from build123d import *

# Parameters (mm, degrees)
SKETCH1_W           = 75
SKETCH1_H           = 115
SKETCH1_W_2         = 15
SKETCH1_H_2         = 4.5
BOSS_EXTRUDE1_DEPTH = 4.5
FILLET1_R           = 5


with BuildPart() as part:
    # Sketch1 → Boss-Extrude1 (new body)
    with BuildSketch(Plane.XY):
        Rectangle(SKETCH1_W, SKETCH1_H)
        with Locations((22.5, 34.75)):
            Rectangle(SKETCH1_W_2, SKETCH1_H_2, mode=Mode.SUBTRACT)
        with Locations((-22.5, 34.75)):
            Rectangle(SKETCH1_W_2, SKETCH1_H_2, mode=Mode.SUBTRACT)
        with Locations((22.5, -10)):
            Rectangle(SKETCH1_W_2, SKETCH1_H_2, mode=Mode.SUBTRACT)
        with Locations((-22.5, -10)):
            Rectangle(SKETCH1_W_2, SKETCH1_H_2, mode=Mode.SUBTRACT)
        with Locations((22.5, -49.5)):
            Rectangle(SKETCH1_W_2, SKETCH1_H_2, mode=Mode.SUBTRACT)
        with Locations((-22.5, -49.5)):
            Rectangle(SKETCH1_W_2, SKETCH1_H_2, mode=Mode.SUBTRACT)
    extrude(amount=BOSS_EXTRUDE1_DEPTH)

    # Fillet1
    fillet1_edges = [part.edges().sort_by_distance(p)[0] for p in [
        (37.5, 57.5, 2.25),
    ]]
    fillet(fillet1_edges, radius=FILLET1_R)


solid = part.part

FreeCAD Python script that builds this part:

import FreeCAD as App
import Part
import Sketcher

V = App.Vector
Q = App.Units.Quantity


def edges_at(feature, points):
    """Names of the edges that pass closest to the given points."""
    edges = feature.Shape.Edges
    near = lambda p: min(range(len(edges)), key=lambda i: edges[i].distToShape(Part.Vertex(*p))[0])
    return sorted({f"Edge{near(p) + 1}" for p in points})

doc = App.newDocument("Part")
body = doc.addObject("PartDesign::Body", "Body")

# Sketch on XY plane
sketch1 = body.newObject("Sketcher::SketchObject", "Sketch")
sketch1.AttachmentSupport = (doc.getObject("XY_Plane"), [""])
sketch1.MapMode = "FlatFace"
sketch1.addGeometry([
    Part.LineSegment(V(-37.5, 57.5, 0), V(-37.5, -57.5, 0)),  # 0
    Part.LineSegment(V(-37.5, -57.5, 0), V(37.5, -57.5, 0)),  # 1
    Part.LineSegment(V(37.5, -57.5, 0), V(37.5, 57.5, 0)),  # 2
    Part.LineSegment(V(37.5, 57.5, 0), V(-37.5, 57.5, 0)),  # 3
    Part.LineSegment(V(-15, -51.8, 0), V(-30, -51.8, 0)),  # 4
    Part.LineSegment(V(-30, -51.8, 0), V(-30, -47.2, 0)),  # 5
    Part.LineSegment(V(-30, -47.2, 0), V(-15, -47.2, 0)),  # 6
    Part.LineSegment(V(-15, -47.2, 0), V(-15, -51.8, 0)),  # 7
    Part.LineSegment(V(-15, -12.2, 0), V(-30, -12.2, 0)),  # 8
    Part.LineSegment(V(-30, -12.2, 0), V(-30, -7.8, 0)),  # 9
    Part.LineSegment(V(-30, -7.8, 0), V(-15, -7.8, 0)),  # 10
    Part.LineSegment(V(-15, -7.8, 0), V(-15, -12.2, 0)),  # 11
    Part.LineSegment(V(30, -51.8, 0), V(15, -51.8, 0)),  # 12
    Part.LineSegment(V(15, -51.8, 0), V(15, -47.2, 0)),  # 13
    Part.LineSegment(V(15, -47.2, 0), V(30, -47.2, 0)),  # 14
    Part.LineSegment(V(30, -47.2, 0), V(30, -51.8, 0)),  # 15
    Part.LineSegment(V(30, -12.2, 0), V(15, -12.2, 0)),  # 16
    Part.LineSegment(V(15, -12.2, 0), V(15, -7.8, 0)),  # 17
    Part.LineSegment(V(15, -7.8, 0), V(30, -7.8, 0)),  # 18
    Part.LineSegment(V(30, -7.8, 0), V(30, -12.2, 0)),  # 19
    Part.LineSegment(V(-15, 32.5, 0), V(-30, 32.5, 0)),  # 20
    Part.LineSegment(V(-30, 32.5, 0), V(-30, 37, 0)),  # 21
    Part.LineSegment(V(-30, 37, 0), V(-15, 37, 0)),  # 22
    Part.LineSegment(V(-15, 37, 0), V(-15, 32.5, 0)),  # 23
    Part.LineSegment(V(30, 32.5, 0), V(15, 32.5, 0)),  # 24
    Part.LineSegment(V(15, 32.5, 0), V(15, 37, 0)),  # 25
    Part.LineSegment(V(15, 37, 0), V(30, 37, 0)),  # 26
    Part.LineSegment(V(30, 37, 0), V(30, 32.5, 0)),  # 27
], False)
sketch1.addConstraint([
    Sketcher.Constraint("Coincident", 0, 2, 1, 1),
    Sketcher.Constraint("Coincident", 1, 2, 2, 1),
    Sketcher.Constraint("Coincident", 2, 2, 3, 1),
    Sketcher.Constraint("Coincident", 3, 2, 0, 1),
    Sketcher.Constraint("Coincident", 4, 2, 5, 1),
    Sketcher.Constraint("Coincident", 5, 2, 6, 1),
    Sketcher.Constraint("Coincident", 6, 2, 7, 1),
    Sketcher.Constraint("Coincident", 7, 2, 4, 1),
    Sketcher.Constraint("Coincident", 8, 2, 9, 1),
    Sketcher.Constraint("Coincident", 9, 2, 10, 1),
    Sketcher.Constraint("Coincident", 10, 2, 11, 1),
    Sketcher.Constraint("Coincident", 11, 2, 8, 1),
    Sketcher.Constraint("Coincident", 12, 2, 13, 1),
    Sketcher.Constraint("Coincident", 13, 2, 14, 1),
    Sketcher.Constraint("Coincident", 14, 2, 15, 1),
    Sketcher.Constraint("Coincident", 15, 2, 12, 1),
    Sketcher.Constraint("Coincident", 16, 2, 17, 1),
    Sketcher.Constraint("Coincident", 17, 2, 18, 1),
    Sketcher.Constraint("Coincident", 18, 2, 19, 1),
    Sketcher.Constraint("Coincident", 19, 2, 16, 1),
    Sketcher.Constraint("Coincident", 20, 2, 21, 1),
    Sketcher.Constraint("Coincident", 21, 2, 22, 1),
    Sketcher.Constraint("Coincident", 22, 2, 23, 1),
    Sketcher.Constraint("Coincident", 23, 2, 20, 1),
    Sketcher.Constraint("Coincident", 24, 2, 25, 1),
    Sketcher.Constraint("Coincident", 25, 2, 26, 1),
    Sketcher.Constraint("Coincident", 26, 2, 27, 1),
    Sketcher.Constraint("Coincident", 27, 2, 24, 1),
    Sketcher.Constraint("Vertical", 0),
    Sketcher.Constraint("Horizontal", 1),
    Sketcher.Constraint("Vertical", 2),
    Sketcher.Constraint("Horizontal", 3),
    Sketcher.Constraint("Horizontal", 4),
    Sketcher.Constraint("Vertical", 5),
    Sketcher.Constraint("Horizontal", 6),
    Sketcher.Constraint("Vertical", 7),
    Sketcher.Constraint("Horizontal", 8),
    Sketcher.Constraint("Vertical", 9),
    Sketcher.Constraint("Horizontal", 10),
    Sketcher.Constraint("Vertical", 11),
    Sketcher.Constraint("Horizontal", 12),
    Sketcher.Constraint("Vertical", 13),
    Sketcher.Constraint("Horizontal", 14),
    Sketcher.Constraint("Vertical", 15),
    Sketcher.Constraint("Horizontal", 16),
    Sketcher.Constraint("Vertical", 17),
    Sketcher.Constraint("Horizontal", 18),
    Sketcher.Constraint("Vertical", 19),
    Sketcher.Constraint("Horizontal", 20),
    Sketcher.Constraint("Vertical", 21),
    Sketcher.Constraint("Horizontal", 22),
    Sketcher.Constraint("Vertical", 23),
    Sketcher.Constraint("Horizontal", 24),
    Sketcher.Constraint("Vertical", 25),
    Sketcher.Constraint("Horizontal", 26),
    Sketcher.Constraint("Vertical", 27),
    Sketcher.Constraint("Symmetric", 0, 2, 2, 2, -1, 1),
    Sketcher.Constraint("Symmetric", 7, 2, 12, 2, -2),
    Sketcher.Constraint("Symmetric", 5, 2, 14, 2, -2),
    Sketcher.Constraint("Symmetric", 11, 2, 16, 2, -2),
    Sketcher.Constraint("Symmetric", 9, 2, 18, 2, -2),
    Sketcher.Constraint("Symmetric", 23, 2, 24, 2, -2),
    Sketcher.Constraint("Symmetric", 21, 2, 26, 2, -2),
    Sketcher.Constraint("Vertical", 5, 2, 8, 2),
    Sketcher.Constraint("Vertical", 7, 2, 10, 2),
    Sketcher.Constraint("Vertical", 9, 2, 20, 2),
    Sketcher.Constraint("Vertical", 11, 2, 22, 2),
    Sketcher.Constraint("Equal", 7, 9),
    Sketcher.Constraint("Equal", 19, 21),
    Sketcher.Constraint("DistanceX", 1, 1, 1, 2, Q("75 mm")),
    Sketcher.Constraint("DistanceX", 4, 2, 4, 1, Q("15 mm")),
    Sketcher.Constraint("DistanceY", 0, 2, 0, 1, Q("115 mm")),
    Sketcher.Constraint("DistanceY", 5, 1, 5, 2, Q("4.5 mm")),
    Sketcher.Constraint("DistanceX", 4, 2, -1, 1, Q("30 mm")),
    Sketcher.Constraint("DistanceY", -1, 1, 21, 2, Q("37 mm")),
    Sketcher.Constraint("DistanceY", 5, 2, 8, 2, Q("35 mm")),
    Sketcher.Constraint("DistanceY", 4, 2, -1, 1, Q("51.75 mm")),
])
pad1 = body.newObject("PartDesign::Pad", "Pad")
pad1.Profile = sketch1
pad1.Length = 4.5
doc.recompute()

fillet = body.newObject("PartDesign::Fillet", "Fillet")
fillet.Base = (pad1, edges_at(pad1, [(37.5, 57.5, 2.25)]))
fillet.Radius = 5

doc.recompute()
